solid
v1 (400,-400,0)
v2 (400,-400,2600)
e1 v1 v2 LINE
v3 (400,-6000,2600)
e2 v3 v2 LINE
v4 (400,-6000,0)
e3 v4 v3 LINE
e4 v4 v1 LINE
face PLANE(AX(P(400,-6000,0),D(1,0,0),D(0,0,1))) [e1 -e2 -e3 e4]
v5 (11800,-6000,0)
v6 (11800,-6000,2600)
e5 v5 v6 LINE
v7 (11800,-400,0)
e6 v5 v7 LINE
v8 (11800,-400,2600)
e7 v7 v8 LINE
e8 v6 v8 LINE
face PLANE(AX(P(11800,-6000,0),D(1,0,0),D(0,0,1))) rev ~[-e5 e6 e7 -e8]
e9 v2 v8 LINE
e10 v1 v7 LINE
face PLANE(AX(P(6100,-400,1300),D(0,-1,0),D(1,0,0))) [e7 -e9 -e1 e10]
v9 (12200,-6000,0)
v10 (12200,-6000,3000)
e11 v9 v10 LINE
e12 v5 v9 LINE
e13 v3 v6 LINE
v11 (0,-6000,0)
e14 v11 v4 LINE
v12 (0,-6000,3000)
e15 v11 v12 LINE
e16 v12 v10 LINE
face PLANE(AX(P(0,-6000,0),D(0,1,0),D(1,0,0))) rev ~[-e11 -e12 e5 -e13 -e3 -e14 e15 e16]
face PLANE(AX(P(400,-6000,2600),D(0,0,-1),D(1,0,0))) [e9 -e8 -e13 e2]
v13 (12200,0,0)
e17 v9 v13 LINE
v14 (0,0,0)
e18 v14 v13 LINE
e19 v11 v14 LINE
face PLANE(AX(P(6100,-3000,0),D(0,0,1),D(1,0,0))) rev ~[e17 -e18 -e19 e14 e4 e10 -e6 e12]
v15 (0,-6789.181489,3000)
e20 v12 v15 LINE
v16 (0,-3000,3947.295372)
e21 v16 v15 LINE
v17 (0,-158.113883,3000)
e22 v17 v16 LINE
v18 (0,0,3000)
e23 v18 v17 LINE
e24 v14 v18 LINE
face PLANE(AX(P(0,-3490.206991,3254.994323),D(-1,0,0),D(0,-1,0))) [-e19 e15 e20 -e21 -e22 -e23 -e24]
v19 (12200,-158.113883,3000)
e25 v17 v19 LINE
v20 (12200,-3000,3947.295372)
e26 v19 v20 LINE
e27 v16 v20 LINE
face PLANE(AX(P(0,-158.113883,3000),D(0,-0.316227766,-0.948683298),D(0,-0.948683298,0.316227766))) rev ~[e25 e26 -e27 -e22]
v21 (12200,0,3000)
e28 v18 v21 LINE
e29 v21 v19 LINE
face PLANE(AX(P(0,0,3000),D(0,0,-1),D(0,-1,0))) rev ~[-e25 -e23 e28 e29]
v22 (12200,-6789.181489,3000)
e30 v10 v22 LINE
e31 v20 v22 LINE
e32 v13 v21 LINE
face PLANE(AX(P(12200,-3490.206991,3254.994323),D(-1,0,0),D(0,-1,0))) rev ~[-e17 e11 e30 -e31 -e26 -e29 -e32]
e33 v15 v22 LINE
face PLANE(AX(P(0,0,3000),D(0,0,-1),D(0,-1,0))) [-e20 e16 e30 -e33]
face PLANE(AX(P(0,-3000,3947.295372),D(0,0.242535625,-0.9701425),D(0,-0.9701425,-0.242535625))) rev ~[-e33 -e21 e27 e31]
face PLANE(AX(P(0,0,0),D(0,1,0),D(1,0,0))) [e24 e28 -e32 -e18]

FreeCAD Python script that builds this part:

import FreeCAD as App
import Part
import Sketcher

V = App.Vector
Q = App.Units.Quantity


def add_polygon(sketch, points):
    """Adds a closed chain of lines whose ends are joined by coincident constraints."""
    first, n = sketch.GeometryCount, len(points)
    for a, b in zip(points, points[1:] + points[:1]):
        sketch.addGeometry(Part.LineSegment(App.Vector(*a, 0), App.Vector(*b, 0)), False)
    for i in range(n):
        sketch.addConstraint(Sketcher.Constraint("Coincident", first + i, 2, first + (i + 1) % n, 1))

doc = App.newDocument("Part")
body = doc.addObject("PartDesign::Body", "Body")

sketch1 = doc.addObject("Sketcher::SketchObject", "Sketch")
body.addObject(sketch1)
sketch1.AttachmentSupport = (doc.XY_Plane, [""])
sketch1.MapMode = "FlatFace"
add_polygon(sketch1, [(0, 0), (0, -6000), (12200, -6000), (12200, 0)])
sketch1.addConstraint(Sketcher.Constraint("Vertical", 0))
sketch1.addConstraint(Sketcher.Constraint("Horizontal", 1))
sketch1.addConstraint(Sketcher.Constraint("Vertical", 2))
sketch1.addConstraint(Sketcher.Constraint("Horizontal", 3))
sketch1.addConstraint(Sketcher.Constraint("Coincident", 3, 2, -1, 1))
sketch1.addConstraint(Sketcher.Constraint("DistanceX", 1, 1, 1, 2, Q("12200 mm")))
sketch1.addConstraint(Sketcher.Constraint("DistanceY", 0, 2, 0, 1, Q("6000 mm")))
pad1 = doc.addObject("PartDesign::Pad", "Pad")
body.addObject(pad1)
pad1.Profile = sketch1
pad1.Length = 3000

sketch2 = doc.addObject("Sketcher::SketchObject", "Sketch001")
body.addObject(sketch2)
sketch2.AttachmentSupport = (doc.YZ_Plane, [""])
sketch2.MapMode = "FlatFace"
add_polygon(sketch2, [(-3000, 4000), (0, 3000), (-7000, 3000)])
sketch2.addConstraint(Sketcher.Constraint("Horizontal", 1))
sketch2.addConstraint(Sketcher.Constraint("PointOnObject", 0, 2, -2))
sketch2.addConstraint(Sketcher.Constraint("DistanceX", 1, 2, 1, 1, Q("7000 mm")))
sketch2.addConstraint(Sketcher.Constraint("DistanceY", -1, 1, 0, 2, Q("3000 mm")))
sketch2.addConstraint(Sketcher.Constraint("DistanceX", 2, 2, -1, 1, Q("3000 mm")))
sketch2.addConstraint(Sketcher.Constraint("DistanceY", -1, 1, 2, 2, Q("4000 mm")))
pad2 = doc.addObject("PartDesign::Pad", "Pad001")
body.addObject(pad2)
pad2.Profile = sketch2
pad2.Length = 12200

sketch3 = doc.addObject("Sketcher::SketchObject", "Sketch002")
body.addObject(sketch3)
sketch3.AttachmentSupport = (doc.XZ_Plane, [""])
sketch3.MapMode = "FlatFace"
sketch3.AttachmentOffset = App.Placement(V(0, 0, 6000), App.Rotation())
add_polygon(sketch3, [(400, 2600), (400, 0), (11800, 0), (11800, 2600)])
sketch3.addConstraint(Sketcher.Constraint("Vertical", 0))
sketch3.addConstraint(Sketcher.Constraint("Horizontal", 1))
sketch3.addConstraint(Sketcher.Constraint("Vertical", 2))
sketch3.addConstraint(Sketcher.Constraint("Horizontal", 3))
sketch3.addConstraint(Sketcher.Constraint("PointOnObject", 0, 2, -1))
sketch3.addConstraint(Sketcher.Constraint("DistanceX", 1, 1, 1, 2, Q("11400 mm")))
sketch3.addConstraint(Sketcher.Constraint("DistanceY", 0, 2, 0, 1, Q("2600 mm")))
sketch3.addConstraint(Sketcher.Constraint("DistanceX", -1, 1, 0, 2, Q("400 mm")))
pocket1 = doc.addObject("PartDesign::Pocket", "Pocket")
body.addObject(pocket1)
pocket1.Profile = sketch3
pocket1.Length = 5600

sketch4 = doc.addObject("Sketcher::SketchObject", "Sketch003")
body.addObject(sketch4)
sketch4.AttachmentSupport = (doc.YZ_Plane, [""])
sketch4.MapMode = "FlatFace"
add_polygon(sketch4, [(-3000, 4000), (0, 3000), (-158, 3000), (-3000, 3947), (-6789, 3000), (-7000, 3000)])
sketch4.addConstraint(Sketcher.Constraint("Horizontal", 1))
sketch4.addConstraint(Sketcher.Constraint("Horizontal", 4))
sketch4.addConstraint(Sketcher.Constraint("PointOnObject", 0, 2, -2))
sketch4.addConstraint(Sketcher.Constraint("Parallel", 0, 2))
sketch4.addConstraint(Sketcher.Constraint("Parallel", 3, 5))
sketch4.addConstraint(Sketcher.Constraint("Horizontal", 1, 2, 3, 2))
sketch4.addConstraint(Sketcher.Constraint("Vertical", 2, 2, 5, 2))
sketch4.addConstraint(Sketcher.Constraint("DistanceY", -1, 1, 0, 2, Q("3000 mm")))
sketch4.addConstraint(Sketcher.Constraint("DistanceX", 2, 2, -1, 1, Q("3000 mm")))
sketch4.addConstraint(Sketcher.Constraint("DistanceX", 4, 2, -1, 1, Q("7000 mm")))
sketch4.addConstraint(Sketcher.Constraint("DistanceY", -1, 1, 5, 2, Q("4000 mm")))
sketch4.addConstraint(Sketcher.Constraint("DistanceX", 4, 2, 4, 1, Q("210.818511 mm")))
pocket2 = doc.addObject("PartDesign::Pocket", "Pocket001")
body.addObject(pocket2)
pocket2.Profile = sketch4
pocket2.Length = 18300
pocket2.Reversed = True

doc.recompute()
